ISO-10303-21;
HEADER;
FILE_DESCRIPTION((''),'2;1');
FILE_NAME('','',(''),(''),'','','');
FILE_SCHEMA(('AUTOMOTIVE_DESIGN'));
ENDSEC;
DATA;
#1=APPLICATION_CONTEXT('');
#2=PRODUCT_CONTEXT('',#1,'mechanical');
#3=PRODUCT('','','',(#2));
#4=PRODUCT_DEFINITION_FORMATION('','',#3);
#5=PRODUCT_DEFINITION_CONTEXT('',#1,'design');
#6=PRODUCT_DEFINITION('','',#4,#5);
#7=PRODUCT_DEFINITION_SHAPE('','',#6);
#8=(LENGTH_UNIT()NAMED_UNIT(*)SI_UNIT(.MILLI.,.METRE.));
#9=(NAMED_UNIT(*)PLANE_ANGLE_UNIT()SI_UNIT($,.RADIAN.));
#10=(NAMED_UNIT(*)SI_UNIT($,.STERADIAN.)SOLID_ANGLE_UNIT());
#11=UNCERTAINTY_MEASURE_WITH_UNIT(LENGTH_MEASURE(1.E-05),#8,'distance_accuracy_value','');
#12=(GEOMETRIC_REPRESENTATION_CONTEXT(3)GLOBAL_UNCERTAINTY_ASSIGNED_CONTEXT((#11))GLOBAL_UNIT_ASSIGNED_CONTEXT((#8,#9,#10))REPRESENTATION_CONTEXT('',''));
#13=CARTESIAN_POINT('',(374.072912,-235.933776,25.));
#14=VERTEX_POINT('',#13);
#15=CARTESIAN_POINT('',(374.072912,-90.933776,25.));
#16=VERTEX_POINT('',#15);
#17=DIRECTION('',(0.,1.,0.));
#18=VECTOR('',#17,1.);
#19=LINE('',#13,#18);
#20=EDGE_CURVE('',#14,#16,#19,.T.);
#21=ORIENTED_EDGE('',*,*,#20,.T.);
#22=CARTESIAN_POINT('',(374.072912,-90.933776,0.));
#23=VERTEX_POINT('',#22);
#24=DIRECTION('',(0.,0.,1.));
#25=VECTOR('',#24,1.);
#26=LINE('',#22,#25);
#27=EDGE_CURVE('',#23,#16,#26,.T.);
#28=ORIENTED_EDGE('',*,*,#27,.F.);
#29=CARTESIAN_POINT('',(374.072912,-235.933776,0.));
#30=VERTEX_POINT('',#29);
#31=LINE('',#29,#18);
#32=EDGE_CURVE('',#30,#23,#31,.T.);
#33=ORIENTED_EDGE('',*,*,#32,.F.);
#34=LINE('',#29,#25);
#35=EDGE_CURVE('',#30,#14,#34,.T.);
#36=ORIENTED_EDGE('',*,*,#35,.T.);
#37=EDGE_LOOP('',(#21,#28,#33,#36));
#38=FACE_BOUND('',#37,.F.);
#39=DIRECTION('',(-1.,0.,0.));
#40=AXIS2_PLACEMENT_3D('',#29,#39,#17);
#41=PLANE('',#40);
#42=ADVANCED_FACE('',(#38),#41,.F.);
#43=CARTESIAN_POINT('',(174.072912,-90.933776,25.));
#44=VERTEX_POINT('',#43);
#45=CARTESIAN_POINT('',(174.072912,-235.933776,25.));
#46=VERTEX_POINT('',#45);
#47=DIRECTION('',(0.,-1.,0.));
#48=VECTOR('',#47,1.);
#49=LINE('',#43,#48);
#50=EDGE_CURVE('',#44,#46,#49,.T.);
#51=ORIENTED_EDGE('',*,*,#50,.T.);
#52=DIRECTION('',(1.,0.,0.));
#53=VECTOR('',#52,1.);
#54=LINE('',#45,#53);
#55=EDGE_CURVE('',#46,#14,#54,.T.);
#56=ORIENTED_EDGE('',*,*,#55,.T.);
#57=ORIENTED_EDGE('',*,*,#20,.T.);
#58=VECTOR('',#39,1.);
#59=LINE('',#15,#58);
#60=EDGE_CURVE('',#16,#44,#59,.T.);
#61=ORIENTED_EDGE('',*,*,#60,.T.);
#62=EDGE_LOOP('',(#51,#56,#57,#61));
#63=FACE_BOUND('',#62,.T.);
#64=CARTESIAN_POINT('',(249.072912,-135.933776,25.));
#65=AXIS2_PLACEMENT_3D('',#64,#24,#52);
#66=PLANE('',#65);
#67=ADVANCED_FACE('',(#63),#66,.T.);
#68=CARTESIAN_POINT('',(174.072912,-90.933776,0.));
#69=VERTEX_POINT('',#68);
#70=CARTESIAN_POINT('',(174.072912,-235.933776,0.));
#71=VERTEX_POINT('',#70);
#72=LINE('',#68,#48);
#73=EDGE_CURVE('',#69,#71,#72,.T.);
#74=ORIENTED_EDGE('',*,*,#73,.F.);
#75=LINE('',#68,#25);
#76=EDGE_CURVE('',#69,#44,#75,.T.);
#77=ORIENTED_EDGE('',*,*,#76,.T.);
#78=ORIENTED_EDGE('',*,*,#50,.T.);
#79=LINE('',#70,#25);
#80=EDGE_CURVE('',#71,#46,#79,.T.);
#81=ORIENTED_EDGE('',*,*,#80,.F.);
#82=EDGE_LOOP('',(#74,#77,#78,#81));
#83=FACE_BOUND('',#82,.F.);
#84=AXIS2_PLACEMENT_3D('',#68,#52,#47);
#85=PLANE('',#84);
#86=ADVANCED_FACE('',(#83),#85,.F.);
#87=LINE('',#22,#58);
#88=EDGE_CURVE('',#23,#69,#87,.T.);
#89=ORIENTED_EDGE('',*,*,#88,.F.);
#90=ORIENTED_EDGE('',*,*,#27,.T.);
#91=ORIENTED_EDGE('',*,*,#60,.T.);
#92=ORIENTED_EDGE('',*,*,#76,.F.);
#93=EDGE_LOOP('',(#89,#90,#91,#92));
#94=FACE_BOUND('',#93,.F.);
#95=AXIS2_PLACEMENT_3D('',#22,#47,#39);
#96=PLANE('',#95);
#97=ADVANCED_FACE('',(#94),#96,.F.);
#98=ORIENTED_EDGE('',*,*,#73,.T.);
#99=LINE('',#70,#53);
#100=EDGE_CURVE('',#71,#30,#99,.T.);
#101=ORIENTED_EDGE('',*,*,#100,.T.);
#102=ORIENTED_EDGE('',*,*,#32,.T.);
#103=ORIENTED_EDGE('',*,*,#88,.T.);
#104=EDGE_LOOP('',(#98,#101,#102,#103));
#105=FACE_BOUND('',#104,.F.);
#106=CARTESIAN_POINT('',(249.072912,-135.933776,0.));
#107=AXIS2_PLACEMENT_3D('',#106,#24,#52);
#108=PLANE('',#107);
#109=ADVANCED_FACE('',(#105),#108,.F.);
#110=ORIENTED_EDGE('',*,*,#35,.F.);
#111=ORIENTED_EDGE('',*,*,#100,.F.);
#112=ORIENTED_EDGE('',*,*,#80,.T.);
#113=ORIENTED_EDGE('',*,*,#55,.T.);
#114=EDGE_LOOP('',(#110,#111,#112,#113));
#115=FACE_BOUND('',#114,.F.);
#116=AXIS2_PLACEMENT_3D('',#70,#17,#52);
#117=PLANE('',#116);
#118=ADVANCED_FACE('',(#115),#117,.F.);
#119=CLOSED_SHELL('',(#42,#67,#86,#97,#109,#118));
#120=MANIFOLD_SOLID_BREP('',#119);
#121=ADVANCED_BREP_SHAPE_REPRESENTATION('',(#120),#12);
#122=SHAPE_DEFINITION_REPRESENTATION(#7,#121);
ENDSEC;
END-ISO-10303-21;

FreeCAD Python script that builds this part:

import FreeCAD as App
import Part
import Sketcher

doc = App.newDocument("Part")
body = doc.addObject("PartDesign::Body", "Body")

# Sketch on XY plane
sketch1 = body.newObject("Sketcher::SketchObject", "Sketch")
sketch1.AttachmentSupport = (doc.getObject("XY_Plane"), [""])
sketch1.MapMode = "FlatFace"
sketch1.addGeometry(Part.LineSegment(App.Vector(174.072912, -90.933776, 0), App.Vector(174.072912, -235.933776, 0)), False)
sketch1.addGeometry(Part.LineSegment(App.Vector(174.072912, -235.933776, 0), App.Vector(374.072912, -235.933776, 0)), False)
sketch1.addGeometry(Part.LineSegment(App.Vector(374.072912, -235.933776, 0), App.Vector(374.072912, -90.933776, 0)), False)
sketch1.addGeometry(Part.LineSegment(App.Vector(374.072912, -90.933776, 0), App.Vector(174.072912, -90.933776, 0)), False)
sketch1.addConstraint(Sketcher.Constraint("Coincident", 0, 2, 1, 1))
sketch1.addConstraint(Sketcher.Constraint("Coincident", 1, 2, 2, 1))
sketch1.addConstraint(Sketcher.Constraint("Coincident", 2, 2, 3, 1))
sketch1.addConstraint(Sketcher.Constraint("Coincident", 3, 2, 0, 1))
sketch1.addConstraint(Sketcher.Constraint("Vertical", 0))
sketch1.addConstraint(Sketcher.Constraint("Horizontal", 1))
sketch1.addConstraint(Sketcher.Constraint("Vertical", 2))
sketch1.addConstraint(Sketcher.Constraint("Horizontal", 3))
sketch1.addConstraint(Sketcher.Constraint("DistanceX", 1, 1, 1, 2, 200.0))
sketch1.addConstraint(Sketcher.Constraint("DistanceY", 0, 2, 0, 1, 145.0))
sketch1.addConstraint(Sketcher.Constraint("DistanceX", -1, 1, 0, 2, 174.072912))
sketch1.addConstraint(Sketcher.Constraint("DistanceY", 0, 2, -1, 1, 235.933776))
pad1 = body.newObject("PartDesign::Pad", "Pad")
pad1.Profile = sketch1
pad1.Length = 25

doc.recompute()
